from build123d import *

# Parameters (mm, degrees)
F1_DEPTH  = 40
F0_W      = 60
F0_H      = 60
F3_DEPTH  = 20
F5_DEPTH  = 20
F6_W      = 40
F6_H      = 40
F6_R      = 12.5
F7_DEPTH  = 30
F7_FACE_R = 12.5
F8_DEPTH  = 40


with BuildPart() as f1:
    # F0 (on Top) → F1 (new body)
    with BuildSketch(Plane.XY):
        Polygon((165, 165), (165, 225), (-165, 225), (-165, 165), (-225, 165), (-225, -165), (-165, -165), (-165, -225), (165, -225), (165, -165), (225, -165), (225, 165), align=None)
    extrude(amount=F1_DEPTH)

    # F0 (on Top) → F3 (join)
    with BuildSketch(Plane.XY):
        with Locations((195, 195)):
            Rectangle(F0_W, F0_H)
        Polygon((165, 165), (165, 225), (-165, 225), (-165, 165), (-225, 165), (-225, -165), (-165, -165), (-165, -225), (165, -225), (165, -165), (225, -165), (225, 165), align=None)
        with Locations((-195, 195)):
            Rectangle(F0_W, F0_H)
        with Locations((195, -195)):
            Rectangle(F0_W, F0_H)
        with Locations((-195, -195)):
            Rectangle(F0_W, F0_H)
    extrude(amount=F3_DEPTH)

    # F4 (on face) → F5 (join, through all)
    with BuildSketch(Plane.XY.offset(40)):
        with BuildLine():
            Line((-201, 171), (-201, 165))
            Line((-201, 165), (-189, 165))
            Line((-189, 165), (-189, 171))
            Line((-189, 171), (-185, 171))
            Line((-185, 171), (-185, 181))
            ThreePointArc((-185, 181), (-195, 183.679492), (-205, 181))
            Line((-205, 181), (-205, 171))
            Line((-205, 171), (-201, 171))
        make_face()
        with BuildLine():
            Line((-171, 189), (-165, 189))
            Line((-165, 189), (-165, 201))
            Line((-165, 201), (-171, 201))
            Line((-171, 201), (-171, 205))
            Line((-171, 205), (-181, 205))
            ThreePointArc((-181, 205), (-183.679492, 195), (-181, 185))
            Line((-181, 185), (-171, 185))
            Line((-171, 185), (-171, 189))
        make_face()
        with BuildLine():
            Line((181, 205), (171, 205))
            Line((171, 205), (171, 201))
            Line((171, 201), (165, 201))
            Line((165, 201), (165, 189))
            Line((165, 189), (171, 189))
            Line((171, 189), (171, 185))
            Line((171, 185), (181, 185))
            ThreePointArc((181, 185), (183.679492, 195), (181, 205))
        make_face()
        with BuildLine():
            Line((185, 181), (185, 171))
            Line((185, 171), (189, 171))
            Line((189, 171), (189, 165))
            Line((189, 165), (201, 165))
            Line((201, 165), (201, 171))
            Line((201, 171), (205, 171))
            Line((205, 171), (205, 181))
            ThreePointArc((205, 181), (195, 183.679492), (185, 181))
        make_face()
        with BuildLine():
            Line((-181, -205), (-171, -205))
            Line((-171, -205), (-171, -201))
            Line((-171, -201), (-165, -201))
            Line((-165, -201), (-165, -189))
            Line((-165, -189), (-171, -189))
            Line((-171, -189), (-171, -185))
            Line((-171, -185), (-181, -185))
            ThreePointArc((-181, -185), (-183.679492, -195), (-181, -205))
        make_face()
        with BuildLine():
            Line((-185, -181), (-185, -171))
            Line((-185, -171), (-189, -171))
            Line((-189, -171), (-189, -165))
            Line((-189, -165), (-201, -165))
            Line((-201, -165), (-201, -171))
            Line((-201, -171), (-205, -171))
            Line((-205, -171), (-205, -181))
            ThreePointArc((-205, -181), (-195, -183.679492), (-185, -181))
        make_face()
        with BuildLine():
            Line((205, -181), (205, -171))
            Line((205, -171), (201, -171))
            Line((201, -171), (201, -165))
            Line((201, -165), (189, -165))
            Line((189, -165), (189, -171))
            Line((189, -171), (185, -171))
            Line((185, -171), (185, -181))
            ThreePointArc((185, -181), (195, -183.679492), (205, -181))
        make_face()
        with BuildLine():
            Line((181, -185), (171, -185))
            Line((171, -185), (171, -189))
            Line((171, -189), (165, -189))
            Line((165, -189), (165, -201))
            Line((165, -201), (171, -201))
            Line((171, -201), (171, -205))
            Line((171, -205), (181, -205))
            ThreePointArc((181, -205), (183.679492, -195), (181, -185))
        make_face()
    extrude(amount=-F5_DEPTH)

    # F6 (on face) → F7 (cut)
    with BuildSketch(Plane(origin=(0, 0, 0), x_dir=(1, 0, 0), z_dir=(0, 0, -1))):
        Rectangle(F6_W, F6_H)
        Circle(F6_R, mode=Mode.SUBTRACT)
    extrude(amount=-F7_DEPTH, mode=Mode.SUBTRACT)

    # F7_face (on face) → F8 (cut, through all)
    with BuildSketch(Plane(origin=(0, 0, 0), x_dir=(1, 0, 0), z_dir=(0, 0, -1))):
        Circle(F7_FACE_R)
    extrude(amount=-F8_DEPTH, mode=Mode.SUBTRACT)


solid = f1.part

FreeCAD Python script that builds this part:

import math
import FreeCAD as App
import Part
import Sketcher
Q = App.Units.Quantity


def add_polygon(sketch, points):
    """Adds a closed chain of lines whose ends are joined by coincident constraints."""
    first, n = sketch.GeometryCount, len(points)
    for a, b in zip(points, points[1:] + points[:1]):
        sketch.addGeometry(Part.LineSegment(App.Vector(*a, 0), App.Vector(*b, 0)), False)
    for i in range(n):
        sketch.addConstraint(Sketcher.Constraint("Coincident", first + i, 2, first + (i + 1) % n, 1))

doc = App.newDocument("Part")
body = doc.addObject("PartDesign::Body", "Body")

sketch1 = body.newObject("Sketcher::SketchObject", "Sketch")
sketch1.AttachmentSupport = (doc.getObject("XY_Plane"), [""])
sketch1.MapMode = "FlatFace"
add_polygon(sketch1, [(165, 165), (165, 225), (-165, 225), (-165, 165), (-225, 165), (-225, -165), (-165, -165), (-165, -225), (165, -225), (165, -165), (225, -165), (225, 165)])
sketch1.addConstraint([
    Sketcher.Constraint("Vertical", 0),
    Sketcher.Constraint("Horizontal", 1),
    Sketcher.Constraint("Vertical", 2),
    Sketcher.Constraint("Horizontal", 3),
    Sketcher.Constraint("Vertical", 4),
    Sketcher.Constraint("Horizontal", 5),
    Sketcher.Constraint("Vertical", 6),
    Sketcher.Constraint("Horizontal", 7),
    Sketcher.Constraint("Vertical", 8),
    Sketcher.Constraint("Horizontal", 9),
    Sketcher.Constraint("Vertical", 10),
    Sketcher.Constraint("Horizontal", 11),
    Sketcher.Constraint("Symmetric", 0, 2, 6, 2, -1, 1),
    Sketcher.Constraint("Symmetric", 2, 2, 8, 2, -1, 1),
    Sketcher.Constraint("Symmetric", 4, 2, 10, 2, -1, 1),
    Sketcher.Constraint("Symmetric", 5, 2, 8, 2, -2),
    Sketcher.Constraint("Equal", 11, 0),
    Sketcher.Constraint("Equal", 7, 4),
    Sketcher.Constraint("DistanceX", 1, 2, 1, 1, Q("330 mm")),
    Sketcher.Constraint("DistanceX", 3, 2, 3, 1, Q("60 mm")),
])
pad1 = body.newObject("PartDesign::Pad", "Pad")
pad1.Profile = sketch1
pad1.Length = 40

sketch2 = body.newObject("Sketcher::SketchObject", "Sketch001")
sketch2.AttachmentSupport = (doc.getObject("XY_Plane"), [""])
sketch2.MapMode = "FlatFace"
add_polygon(sketch2, [(225, 225), (-225, 225), (-225, -225), (225, -225)])
sketch2.addConstraint([
    Sketcher.Constraint("Horizontal", 0),
    Sketcher.Constraint("Vertical", 1),
    Sketcher.Constraint("Horizontal", 2),
    Sketcher.Constraint("Vertical", 3),
    Sketcher.Constraint("Symmetric", 0, 2, 2, 2, -1, 1),
    Sketcher.Constraint("Equal", 2, 1),
    Sketcher.Constraint("DistanceX", 0, 2, 0, 1, Q("450 mm")),
])
pad2 = body.newObject("PartDesign::Pad", "Pad001")
pad2.Profile = sketch2
pad2.Length = 20

sketch3 = body.newObject("Sketcher::SketchObject", "Sketch002")
sketch3.AttachmentSupport = (doc.getObject("XY_Plane"), [""])
sketch3.MapMode = "FlatFace"
sketch3.AttachmentOffset = App.Placement(App.Vector(0, 0, 40), App.Rotation())
sketch3.addGeometry([
    Part.LineSegment(App.Vector(-201, 171, 0), App.Vector(-201, 165, 0)),
    Part.LineSegment(App.Vector(-201, 165, 0), App.Vector(-189, 165, 0)),
    Part.LineSegment(App.Vector(-189, 165, 0), App.Vector(-189, 171, 0)),
    Part.LineSegment(App.Vector(-189, 171, 0), App.Vector(-185, 171, 0)),
    Part.LineSegment(App.Vector(-185, 171, 0), App.Vector(-185, 181, 0)),
    Part.ArcOfCircle(Part.Circle(App.Vector(-195, 163.7, 0), App.Vector(0, 0, 1), 20), math.radians(60), math.radians(120)),
    Part.LineSegment(App.Vector(-205, 181, 0), App.Vector(-205, 171, 0)),
    Part.LineSegment(App.Vector(-205, 171, 0), App.Vector(-201, 171, 0)),
    Part.LineSegment(App.Vector(-171, 189, 0), App.Vector(-165, 189, 0)),
    Part.LineSegment(App.Vector(-165, 189, 0), App.Vector(-165, 201, 0)),
    Part.LineSegment(App.Vector(-165, 201, 0), App.Vector(-171, 201, 0)),
    Part.LineSegment(App.Vector(-171, 201, 0), App.Vector(-171, 205, 0)),
    Part.LineSegment(App.Vector(-171, 205, 0), App.Vector(-181, 205, 0)),
    Part.ArcOfCircle(Part.Circle(App.Vector(-163.7, 195, 0), App.Vector(0, 0, 1), 20), math.radians(150), math.radians(210)),
    Part.LineSegment(App.Vector(-181, 185, 0), App.Vector(-171, 185, 0)),
    Part.LineSegment(App.Vector(-171, 185, 0), App.Vector(-171, 189, 0)),
    Part.LineSegment(App.Vector(181, 205, 0), App.Vector(171, 205, 0)),
    Part.LineSegment(App.Vector(171, 205, 0), App.Vector(171, 201, 0)),
    Part.LineSegment(App.Vector(171, 201, 0), App.Vector(165, 201, 0)),
    Part.LineSegment(App.Vector(165, 201, 0), App.Vector(165, 189, 0)),
    Part.LineSegment(App.Vector(165, 189, 0), App.Vector(171, 189, 0)),
    Part.LineSegment(App.Vector(171, 189, 0), App.Vector(171, 185, 0)),
    Part.LineSegment(App.Vector(171, 185, 0), App.Vector(181, 185, 0)),
    Part.ArcOfCircle(Part.Circle(App.Vector(163.7, 195, 0), App.Vector(0, 0, 1), 20), math.radians(-30), math.radians(30)),
    Part.LineSegment(App.Vector(185, 181, 0), App.Vector(185, 171, 0)),
    Part.LineSegment(App.Vector(185, 171, 0), App.Vector(189, 171, 0)),
    Part.LineSegment(App.Vector(189, 171, 0), App.Vector(189, 165, 0)),
    Part.LineSegment(App.Vector(189, 165, 0), App.Vector(201, 165, 0)),
    Part.LineSegment(App.Vector(201, 165, 0), App.Vector(201, 171, 0)),
    Part.LineSegment(App.Vector(201, 171, 0), App.Vector(205, 171, 0)),
    Part.LineSegment(App.Vector(205, 171, 0), App.Vector(205, 181, 0)),
    Part.ArcOfCircle(Part.Circle(App.Vector(195, 163.7, 0), App.Vector(0, 0, 1), 20), math.radians(60), math.radians(120)),
    Part.LineSegment(App.Vector(-181, -205, 0), App.Vector(-171, -205, 0)),
    Part.LineSegment(App.Vector(-171, -205, 0), App.Vector(-171, -201, 0)),
    Part.LineSegment(App.Vector(-171, -201, 0), App.Vector(-165, -201, 0)),
    Part.LineSegment(App.Vector(-165, -201, 0), App.Vector(-165, -189, 0)),
    Part.LineSegment(App.Vector(-165, -189, 0), App.Vector(-171, -189, 0)),
    Part.LineSegment(App.Vector(-171, -189, 0), App.Vector(-171, -185, 0)),
    Part.LineSegment(App.Vector(-171, -185, 0), App.Vector(-181, -185, 0)),
    Part.ArcOfCircle(Part.Circle(App.Vector(-163.7, -195, 0), App.Vector(0, 0, 1), 20), math.radians(150), math.radians(210)),
    Part.LineSegment(App.Vector(-185, -181, 0), App.Vector(-185, -171, 0)),
    Part.LineSegment(App.Vector(-185, -171, 0), App.Vector(-189, -171, 0)),
    Part.LineSegment(App.Vector(-189, -171, 0), App.Vector(-189, -165, 0)),
    Part.LineSegment(App.Vector(-189, -165, 0), App.Vector(-201, -165, 0)),
    Part.LineSegment(App.Vector(-201, -165, 0), App.Vector(-201, -171, 0)),
    Part.LineSegment(App.Vector(-201, -171, 0), App.Vector(-205, -171, 0)),
    Part.LineSegment(App.Vector(-205, -171, 0), App.Vector(-205, -181, 0)),
    Part.ArcOfCircle(Part.Circle(App.Vector(-195, -163.7, 0), App.Vector(0, 0, 1), 20), math.radians(-120), math.radians(-60)),
    Part.LineSegment(App.Vector(205, -181, 0), App.Vector(205, -171, 0)),
    Part.LineSegment(App.Vector(205, -171, 0), App.Vector(201, -171, 0)),
    Part.LineSegment(App.Vector(201, -171, 0), App.Vector(201, -165, 0)),
    Part.LineSegment(App.Vector(201, -165, 0), App.Vector(189, -165, 0)),
    Part.LineSegment(App.Vector(189, -165, 0), App.Vector(189, -171, 0)),
    Part.LineSegment(App.Vector(189, -171, 0), App.Vector(185, -171, 0)),
    Part.LineSegment(App.Vector(185, -171, 0), App.Vector(185, -181, 0)),
    Part.ArcOfCircle(Part.Circle(App.Vector(195, -163.7, 0), App.Vector(0, 0, 1), 20), math.radians(-120), math.radians(-60)),
    Part.LineSegment(App.Vector(181, -185, 0), App.Vector(171, -185, 0)),
    Part.LineSegment(App.Vector(171, -185, 0), App.Vector(171, -189, 0)),
    Part.LineSegment(App.Vector(171, -189, 0), App.Vector(165, -189, 0)),
    Part.LineSegment(App.Vector(165, -189, 0), App.Vector(165, -201, 0)),
    Part.LineSegment(App.Vector(165, -201, 0), App.Vector(171, -201, 0)),
    Part.LineSegment(App.Vector(171, -201, 0), App.Vector(171, -205, 0)),
    Part.LineSegment(App.Vector(171, -205, 0), App.Vector(181, -205, 0)),
    Part.ArcOfCircle(Part.Circle(App.Vector(163.7, -195, 0), App.Vector(0, 0, 1), 20), math.radians(-30), math.radians(30)),
], False)
sketch3.addConstraint([
    Sketcher.Constraint("Coincident", 0, 2, 1, 1),
    Sketcher.Constraint("Coincident", 1, 2, 2, 1),
    Sketcher.Constraint("Coincident", 2, 2, 3, 1),
    Sketcher.Constraint("Coincident", 3, 2, 4, 1),
    Sketcher.Constraint("Coincident", 4, 2, 5, 1),
    Sketcher.Constraint("Coincident", 5, 2, 6, 1),
    Sketcher.Constraint("Coincident", 6, 2, 7, 1),
    Sketcher.Constraint("Coincident", 7, 2, 0, 1),
    Sketcher.Constraint("Coincident", 8, 2, 9, 1),
    Sketcher.Constraint("Coincident", 9, 2, 10, 1),
    Sketcher.Constraint("Coincident", 10, 2, 11, 1),
    Sketcher.Constraint("Coincident", 11, 2, 12, 1),
    Sketcher.Constraint("Coincident", 12, 2, 13, 1),
    Sketcher.Constraint("Coincident", 13, 2, 14, 1),
    Sketcher.Constraint("Coincident", 14, 2, 15, 1),
    Sketcher.Constraint("Coincident", 15, 2, 8, 1),
    Sketcher.Constraint("Coincident", 16, 2, 17, 1),
    Sketcher.Constraint("Coincident", 17, 2, 18, 1),
    Sketcher.Constraint("Coincident", 18, 2, 19, 1),
    Sketcher.Constraint("Coincident", 19, 2, 20, 1),
    Sketcher.Constraint("Coincident", 20, 2, 21, 1),
    Sketcher.Constraint("Coincident", 21, 2, 22, 1),
    Sketcher.Constraint("Coincident", 22, 2, 23, 1),
    Sketcher.Constraint("Coincident", 23, 2, 16, 1),
    Sketcher.Constraint("Coincident", 24, 2, 25, 1),
    Sketcher.Constraint("Coincident", 25, 2, 26, 1),
    Sketcher.Constraint("Coincident", 26, 2, 27, 1),
    Sketcher.Constraint("Coincident", 27, 2, 28, 1),
    Sketcher.Constraint("Coincident", 28, 2, 29, 1),
    Sketcher.Constraint("Coincident", 29, 2, 30, 1),
    Sketcher.Constraint("Coincident", 30, 2, 31, 1),
    Sketcher.Constraint("Coincident", 31, 2, 24, 1),
    Sketcher.Constraint("Coincident", 32, 2, 33, 1),
    Sketcher.Constraint("Coincident", 33, 2, 34, 1),
    Sketcher.Constraint("Coincident", 34, 2, 35, 1),
    Sketcher.Constraint("Coincident", 35, 2, 36, 1),
    Sketcher.Constraint("Coincident", 36, 2, 37, 1),
    Sketcher.Constraint("Coincident", 37, 2, 38, 1),
    Sketcher.Constraint("Coincident", 38, 2, 39, 1),
    Sketcher.Constraint("Coincident", 39, 2, 32, 1),
    Sketcher.Constraint("Coincident", 40, 2, 41, 1),
    Sketcher.Constraint("Coincident", 41, 2, 42, 1),
    Sketcher.Constraint("Coincident", 42, 2, 43, 1),
    Sketcher.Constraint("Coincident", 43, 2, 44, 1),
    Sketcher.Constraint("Coincident", 44, 2, 45, 1),
    Sketcher.Constraint("Coincident", 45, 2, 46, 1),
    Sketcher.Constraint("Coincident", 46, 2, 47, 1),
    Sketcher.Constraint("Coincident", 47, 2, 40, 1),
    Sketcher.Constraint("Coincident", 48, 2, 49, 1),
    Sketcher.Constraint("Coincident", 49, 2, 50, 1),
    Sketcher.Constraint("Coincident", 50, 2, 51, 1),
    Sketcher.Constraint("Coincident", 51, 2, 52, 1),
    Sketcher.Constraint("Coincident", 52, 2, 53, 1),
    Sketcher.Constraint("Coincident", 53, 2, 54, 1),
    Sketcher.Constraint("Coincident", 54, 2, 55, 1),
    Sketcher.Constraint("Coincident", 55, 2, 48, 1),
    Sketcher.Constraint("Coincident", 56, 2, 57, 1),
    Sketcher.Constraint("Coincident", 57, 2, 58, 1),
    Sketcher.Constraint("Coincident", 58, 2, 59, 1),
    Sketcher.Constraint("Coincident", 59, 2, 60, 1),
    Sketcher.Constraint("Coincident", 60, 2, 61, 1),
    Sketcher.Constraint("Coincident", 61, 2, 62, 1),
    Sketcher.Constraint("Coincident", 62, 2, 63, 1),
    Sketcher.Constraint("Coincident", 63, 2, 56, 1),
    Sketcher.Constraint("Vertical", 0),
    Sketcher.Constraint("Horizontal", 1),
    Sketcher.Constraint("Vertical", 2),
    Sketcher.Constraint("Horizontal", 3),
    Sketcher.Constraint("Vertical", 4),
    Sketcher.Constraint("Vertical", 6),
    Sketcher.Constraint("Horizontal", 7),
    Sketcher.Constraint("Horizontal", 8),
    Sketcher.Constraint("Vertical", 9),
    Sketcher.Constraint("Horizontal", 10),
    Sketcher.Constraint("Vertical", 11),
    Sketcher.Constraint("Horizontal", 12),
    Sketcher.Constraint("Horizontal", 14),
    Sketcher.Constraint("Vertical", 15),
    Sketcher.Constraint("Horizontal", 16),
    Sketcher.Constraint("Vertical", 17),
    Sketcher.Constraint("Horizontal", 18),
    Sketcher.Constraint("Vertical", 19),
    Sketcher.Constraint("Horizontal", 20),
    Sketcher.Constraint("Vertical", 21),
    Sketcher.Constraint("Horizontal", 22),
    Sketcher.Constraint("Vertical", 24),
    Sketcher.Constraint("Horizontal", 25),
    Sketcher.Constraint("Vertical", 26),
    Sketcher.Constraint("Horizontal", 27),
    Sketcher.Constraint("Vertical", 28),
    Sketcher.Constraint("Horizontal", 29),
    Sketcher.Constraint("Vertical", 30),
    Sketcher.Constraint("Horizontal", 32),
    Sketcher.Constraint("Vertical", 33),
    Sketcher.Constraint("Horizontal", 34),
    Sketcher.Constraint("Vertical", 35),
    Sketcher.Constraint("Horizontal", 36),
    Sketcher.Constraint("Vertical", 37),
    Sketcher.Constraint("Horizontal", 38),
    Sketcher.Constraint("Vertical", 40),
    Sketcher.Constraint("Horizontal", 41),
    Sketcher.Constraint("Vertical", 42),
    Sketcher.Constraint("Horizontal", 43),
    Sketcher.Constraint("Vertical", 44),
    Sketcher.Constraint("Horizontal", 45),
    Sketcher.Constraint("Vertical", 46),
    Sketcher.Constraint("Vertical", 48),
    Sketcher.Constraint("Horizontal", 49),
    Sketcher.Constraint("Vertical", 50),
    Sketcher.Constraint("Horizontal", 51),
    Sketcher.Constraint("Vertical", 52),
    Sketcher.Constraint("Horizontal", 53),
    Sketcher.Constraint("Vertical", 54),
    Sketcher.Constraint("Horizontal", 56),
    Sketcher.Constraint("Vertical", 57),
    Sketcher.Constraint("Horizontal", 58),
    Sketcher.Constraint("Vertical", 59),
    Sketcher.Constraint("Horizontal", 60),
    Sketcher.Constraint("Vertical", 61),
    Sketcher.Constraint("Horizontal", 62),
    Sketcher.Constraint("Equal", 5, 13),
    Sketcher.Constraint("Equal", 13, 23),
    Sketcher.Constraint("Equal", 23, 31),
    Sketcher.Constraint("Equal", 31, 39),
    Sketcher.Constraint("Equal", 39, 47),
    Sketcher.Constraint("Equal", 47, 55),
    Sketcher.Constraint("Equal", 55, 63),
    Sketcher.Constraint("Symmetric", 23, 3, 39, 3, -1, 1),
    Sketcher.Constraint("Symmetric", 31, 3, 47, 3, -1, 1),
    Sketcher.Constraint("Symmetric", 5, 3, 55, 3, -1, 1),
    Sketcher.Constraint("Symmetric", 13, 3, 63, 3, -1, 1),
    Sketcher.Constraint("Symmetric", 16, 2, 32, 2, -1, 1),
    Sketcher.Constraint("Symmetric", 18, 2, 34, 2, -1, 1),
    Sketcher.Constraint("Symmetric", 20, 2, 36, 2, -1, 1),
    Sketcher.Constraint("Symmetric", 24, 2, 40, 2, -1, 1),
    Sketcher.Constraint("Symmetric", 26, 2, 42, 2, -1, 1),
    Sketcher.Constraint("Symmetric", 28, 2, 44, 2, -1, 1),
    Sketcher.Constraint("Symmetric", 6, 2, 48, 2, -1, 1),
    Sketcher.Constraint("Symmetric", 0, 2, 50, 2, -1, 1),
    Sketcher.Constraint("Symmetric", 2, 2, 52, 2, -1, 1),
    Sketcher.Constraint("Symmetric", 14, 2, 56, 2, -1, 1),
    Sketcher.Constraint("Symmetric", 8, 2, 58, 2, -1, 1),
    Sketcher.Constraint("Symmetric", 10, 2, 60, 2, -1, 1),
    Sketcher.Constraint("Symmetric", 13, 3, 23, 3, -2),
    Sketcher.Constraint("Symmetric", 5, 3, 31, 3, -2),
    Sketcher.Constraint("Symmetric", 11, 2, 16, 2, -2),
    Sketcher.Constraint("Symmetric", 9, 2, 18, 2, -2),
    Sketcher.Constraint("Symmetric", 15, 2, 20, 2, -2),
    Sketcher.Constraint("Symmetric", 3, 2, 24, 2, -2),
    Sketcher.Constraint("Symmetric", 1, 2, 26, 2, -2),
    Sketcher.Constraint("Symmetric", 7, 2, 28, 2, -2),
    Sketcher.Constraint("Horizontal", 4, 2, 5, 2),
    Sketcher.Constraint("Horizontal", 3, 2, 6, 2),
    Sketcher.Constraint("Horizontal", 14, 2, 21, 2),
    Sketcher.Constraint("Horizontal", 5, 2, 30, 2),
    Sketcher.Constraint("Horizontal", 46, 2, 47, 2),
    Sketcher.Constraint("Horizontal", 47, 2, 54, 2),
    Sketcher.Constraint("Horizontal", 38, 2, 56, 2),
    Sketcher.Constraint("Horizontal", 39, 2, 61, 2),
    Sketcher.Constraint("Vertical", 12, 2, 13, 2),
    Sketcher.Constraint("Vertical", 11, 2, 14, 2),
    Sketcher.Constraint("Equal", 3, 7),
    Sketcher.Constraint("Equal", 60, 0),
    Sketcher.Constraint("Equal", 62, 4),
    Sketcher.Constraint("Equal", 51, 9),
    Sketcher.Constraint("Equal", 53, 11),
    Sketcher.Constraint("Equal", 11, 15),
    Sketcher.Constraint("Radius", 5, Q("20 mm")),
    Sketcher.Constraint("DistanceX", 1, 1, 1, 2, Q("12 mm")),
    Sketcher.Constraint("DistanceX", 3, 1, 3, 2, Q("4 mm")),
    Sketcher.Constraint("DistanceX", 8, 1, 8, 2, Q("6 mm")),
    Sketcher.Constraint("DistanceX", 12, 2, 12, 1, Q("10 mm")),
    Sketcher.Constraint("DistanceX", 5, 3, -1, 1, Q("195 mm")),
    Sketcher.Constraint("DistanceY", -1, 1, 13, 3, Q("195 mm")),
    Sketcher.Constraint("DistanceY", -1, 1, 0, 2, Q("165 mm")),
    Sketcher.Constraint("DistanceX", 8, 2, -1, 1, Q("165 mm")),
])
pad3 = body.newObject("PartDesign::Pad", "Pad002")
pad3.Profile = sketch3
pad3.Type = "UpToLast"
pad3.Reversed = True

sketch4 = body.newObject("Sketcher::SketchObject", "Sketch003")
sketch4.AttachmentSupport = (doc.getObject("XY_Plane"), [""])
sketch4.MapMode = "FlatFace"
add_polygon(sketch4, [(-20, -20), (-20, 20), (20, 20), (20, -20)])
sketch4.addGeometry(Part.Circle(App.Vector(0, 0, 0), App.Vector(0, 0, 1), 12), False)
sketch4.addConstraint([
    Sketcher.Constraint("Vertical", 0),
    Sketcher.Constraint("Horizontal", 1),
    Sketcher.Constraint("Vertical", 2),
    Sketcher.Constraint("Horizontal", 3),
    Sketcher.Constraint("Coincident", 4, 3, -1, 1),
    Sketcher.Constraint("Symmetric", 0, 2, 2, 2, -1, 1),
    Sketcher.Constraint("Equal", 3, 0),
    Sketcher.Constraint("Diameter", 4, Q("25 mm")),
    Sketcher.Constraint("DistanceX", 1, 1, 1, 2, Q("40 mm")),
])
pocket1 = body.newObject("PartDesign::Pocket", "Pocket")
pocket1.Profile = sketch4
pocket1.Length = 30
pocket1.Reversed = True

sketch5 = body.newObject("Sketcher::SketchObject", "Sketch004")
sketch5.AttachmentSupport = (doc.getObject("XY_Plane"), [""])
sketch5.MapMode = "FlatFace"
sketch5.addGeometry(Part.Circle(App.Vector(0, 0, 0), App.Vector(0, 0, 1), 12), False)
sketch5.addConstraint([
    Sketcher.Constraint("Coincident", 0, 3, -1, 1),
    Sketcher.Constraint("Diameter", 0, Q("25 mm")),
])
pocket2 = body.newObject("PartDesign::Pocket", "Pocket001")
pocket2.Profile = sketch5
pocket2.Type = "ThroughAll"
pocket2.Reversed = True

doc.recompute()
